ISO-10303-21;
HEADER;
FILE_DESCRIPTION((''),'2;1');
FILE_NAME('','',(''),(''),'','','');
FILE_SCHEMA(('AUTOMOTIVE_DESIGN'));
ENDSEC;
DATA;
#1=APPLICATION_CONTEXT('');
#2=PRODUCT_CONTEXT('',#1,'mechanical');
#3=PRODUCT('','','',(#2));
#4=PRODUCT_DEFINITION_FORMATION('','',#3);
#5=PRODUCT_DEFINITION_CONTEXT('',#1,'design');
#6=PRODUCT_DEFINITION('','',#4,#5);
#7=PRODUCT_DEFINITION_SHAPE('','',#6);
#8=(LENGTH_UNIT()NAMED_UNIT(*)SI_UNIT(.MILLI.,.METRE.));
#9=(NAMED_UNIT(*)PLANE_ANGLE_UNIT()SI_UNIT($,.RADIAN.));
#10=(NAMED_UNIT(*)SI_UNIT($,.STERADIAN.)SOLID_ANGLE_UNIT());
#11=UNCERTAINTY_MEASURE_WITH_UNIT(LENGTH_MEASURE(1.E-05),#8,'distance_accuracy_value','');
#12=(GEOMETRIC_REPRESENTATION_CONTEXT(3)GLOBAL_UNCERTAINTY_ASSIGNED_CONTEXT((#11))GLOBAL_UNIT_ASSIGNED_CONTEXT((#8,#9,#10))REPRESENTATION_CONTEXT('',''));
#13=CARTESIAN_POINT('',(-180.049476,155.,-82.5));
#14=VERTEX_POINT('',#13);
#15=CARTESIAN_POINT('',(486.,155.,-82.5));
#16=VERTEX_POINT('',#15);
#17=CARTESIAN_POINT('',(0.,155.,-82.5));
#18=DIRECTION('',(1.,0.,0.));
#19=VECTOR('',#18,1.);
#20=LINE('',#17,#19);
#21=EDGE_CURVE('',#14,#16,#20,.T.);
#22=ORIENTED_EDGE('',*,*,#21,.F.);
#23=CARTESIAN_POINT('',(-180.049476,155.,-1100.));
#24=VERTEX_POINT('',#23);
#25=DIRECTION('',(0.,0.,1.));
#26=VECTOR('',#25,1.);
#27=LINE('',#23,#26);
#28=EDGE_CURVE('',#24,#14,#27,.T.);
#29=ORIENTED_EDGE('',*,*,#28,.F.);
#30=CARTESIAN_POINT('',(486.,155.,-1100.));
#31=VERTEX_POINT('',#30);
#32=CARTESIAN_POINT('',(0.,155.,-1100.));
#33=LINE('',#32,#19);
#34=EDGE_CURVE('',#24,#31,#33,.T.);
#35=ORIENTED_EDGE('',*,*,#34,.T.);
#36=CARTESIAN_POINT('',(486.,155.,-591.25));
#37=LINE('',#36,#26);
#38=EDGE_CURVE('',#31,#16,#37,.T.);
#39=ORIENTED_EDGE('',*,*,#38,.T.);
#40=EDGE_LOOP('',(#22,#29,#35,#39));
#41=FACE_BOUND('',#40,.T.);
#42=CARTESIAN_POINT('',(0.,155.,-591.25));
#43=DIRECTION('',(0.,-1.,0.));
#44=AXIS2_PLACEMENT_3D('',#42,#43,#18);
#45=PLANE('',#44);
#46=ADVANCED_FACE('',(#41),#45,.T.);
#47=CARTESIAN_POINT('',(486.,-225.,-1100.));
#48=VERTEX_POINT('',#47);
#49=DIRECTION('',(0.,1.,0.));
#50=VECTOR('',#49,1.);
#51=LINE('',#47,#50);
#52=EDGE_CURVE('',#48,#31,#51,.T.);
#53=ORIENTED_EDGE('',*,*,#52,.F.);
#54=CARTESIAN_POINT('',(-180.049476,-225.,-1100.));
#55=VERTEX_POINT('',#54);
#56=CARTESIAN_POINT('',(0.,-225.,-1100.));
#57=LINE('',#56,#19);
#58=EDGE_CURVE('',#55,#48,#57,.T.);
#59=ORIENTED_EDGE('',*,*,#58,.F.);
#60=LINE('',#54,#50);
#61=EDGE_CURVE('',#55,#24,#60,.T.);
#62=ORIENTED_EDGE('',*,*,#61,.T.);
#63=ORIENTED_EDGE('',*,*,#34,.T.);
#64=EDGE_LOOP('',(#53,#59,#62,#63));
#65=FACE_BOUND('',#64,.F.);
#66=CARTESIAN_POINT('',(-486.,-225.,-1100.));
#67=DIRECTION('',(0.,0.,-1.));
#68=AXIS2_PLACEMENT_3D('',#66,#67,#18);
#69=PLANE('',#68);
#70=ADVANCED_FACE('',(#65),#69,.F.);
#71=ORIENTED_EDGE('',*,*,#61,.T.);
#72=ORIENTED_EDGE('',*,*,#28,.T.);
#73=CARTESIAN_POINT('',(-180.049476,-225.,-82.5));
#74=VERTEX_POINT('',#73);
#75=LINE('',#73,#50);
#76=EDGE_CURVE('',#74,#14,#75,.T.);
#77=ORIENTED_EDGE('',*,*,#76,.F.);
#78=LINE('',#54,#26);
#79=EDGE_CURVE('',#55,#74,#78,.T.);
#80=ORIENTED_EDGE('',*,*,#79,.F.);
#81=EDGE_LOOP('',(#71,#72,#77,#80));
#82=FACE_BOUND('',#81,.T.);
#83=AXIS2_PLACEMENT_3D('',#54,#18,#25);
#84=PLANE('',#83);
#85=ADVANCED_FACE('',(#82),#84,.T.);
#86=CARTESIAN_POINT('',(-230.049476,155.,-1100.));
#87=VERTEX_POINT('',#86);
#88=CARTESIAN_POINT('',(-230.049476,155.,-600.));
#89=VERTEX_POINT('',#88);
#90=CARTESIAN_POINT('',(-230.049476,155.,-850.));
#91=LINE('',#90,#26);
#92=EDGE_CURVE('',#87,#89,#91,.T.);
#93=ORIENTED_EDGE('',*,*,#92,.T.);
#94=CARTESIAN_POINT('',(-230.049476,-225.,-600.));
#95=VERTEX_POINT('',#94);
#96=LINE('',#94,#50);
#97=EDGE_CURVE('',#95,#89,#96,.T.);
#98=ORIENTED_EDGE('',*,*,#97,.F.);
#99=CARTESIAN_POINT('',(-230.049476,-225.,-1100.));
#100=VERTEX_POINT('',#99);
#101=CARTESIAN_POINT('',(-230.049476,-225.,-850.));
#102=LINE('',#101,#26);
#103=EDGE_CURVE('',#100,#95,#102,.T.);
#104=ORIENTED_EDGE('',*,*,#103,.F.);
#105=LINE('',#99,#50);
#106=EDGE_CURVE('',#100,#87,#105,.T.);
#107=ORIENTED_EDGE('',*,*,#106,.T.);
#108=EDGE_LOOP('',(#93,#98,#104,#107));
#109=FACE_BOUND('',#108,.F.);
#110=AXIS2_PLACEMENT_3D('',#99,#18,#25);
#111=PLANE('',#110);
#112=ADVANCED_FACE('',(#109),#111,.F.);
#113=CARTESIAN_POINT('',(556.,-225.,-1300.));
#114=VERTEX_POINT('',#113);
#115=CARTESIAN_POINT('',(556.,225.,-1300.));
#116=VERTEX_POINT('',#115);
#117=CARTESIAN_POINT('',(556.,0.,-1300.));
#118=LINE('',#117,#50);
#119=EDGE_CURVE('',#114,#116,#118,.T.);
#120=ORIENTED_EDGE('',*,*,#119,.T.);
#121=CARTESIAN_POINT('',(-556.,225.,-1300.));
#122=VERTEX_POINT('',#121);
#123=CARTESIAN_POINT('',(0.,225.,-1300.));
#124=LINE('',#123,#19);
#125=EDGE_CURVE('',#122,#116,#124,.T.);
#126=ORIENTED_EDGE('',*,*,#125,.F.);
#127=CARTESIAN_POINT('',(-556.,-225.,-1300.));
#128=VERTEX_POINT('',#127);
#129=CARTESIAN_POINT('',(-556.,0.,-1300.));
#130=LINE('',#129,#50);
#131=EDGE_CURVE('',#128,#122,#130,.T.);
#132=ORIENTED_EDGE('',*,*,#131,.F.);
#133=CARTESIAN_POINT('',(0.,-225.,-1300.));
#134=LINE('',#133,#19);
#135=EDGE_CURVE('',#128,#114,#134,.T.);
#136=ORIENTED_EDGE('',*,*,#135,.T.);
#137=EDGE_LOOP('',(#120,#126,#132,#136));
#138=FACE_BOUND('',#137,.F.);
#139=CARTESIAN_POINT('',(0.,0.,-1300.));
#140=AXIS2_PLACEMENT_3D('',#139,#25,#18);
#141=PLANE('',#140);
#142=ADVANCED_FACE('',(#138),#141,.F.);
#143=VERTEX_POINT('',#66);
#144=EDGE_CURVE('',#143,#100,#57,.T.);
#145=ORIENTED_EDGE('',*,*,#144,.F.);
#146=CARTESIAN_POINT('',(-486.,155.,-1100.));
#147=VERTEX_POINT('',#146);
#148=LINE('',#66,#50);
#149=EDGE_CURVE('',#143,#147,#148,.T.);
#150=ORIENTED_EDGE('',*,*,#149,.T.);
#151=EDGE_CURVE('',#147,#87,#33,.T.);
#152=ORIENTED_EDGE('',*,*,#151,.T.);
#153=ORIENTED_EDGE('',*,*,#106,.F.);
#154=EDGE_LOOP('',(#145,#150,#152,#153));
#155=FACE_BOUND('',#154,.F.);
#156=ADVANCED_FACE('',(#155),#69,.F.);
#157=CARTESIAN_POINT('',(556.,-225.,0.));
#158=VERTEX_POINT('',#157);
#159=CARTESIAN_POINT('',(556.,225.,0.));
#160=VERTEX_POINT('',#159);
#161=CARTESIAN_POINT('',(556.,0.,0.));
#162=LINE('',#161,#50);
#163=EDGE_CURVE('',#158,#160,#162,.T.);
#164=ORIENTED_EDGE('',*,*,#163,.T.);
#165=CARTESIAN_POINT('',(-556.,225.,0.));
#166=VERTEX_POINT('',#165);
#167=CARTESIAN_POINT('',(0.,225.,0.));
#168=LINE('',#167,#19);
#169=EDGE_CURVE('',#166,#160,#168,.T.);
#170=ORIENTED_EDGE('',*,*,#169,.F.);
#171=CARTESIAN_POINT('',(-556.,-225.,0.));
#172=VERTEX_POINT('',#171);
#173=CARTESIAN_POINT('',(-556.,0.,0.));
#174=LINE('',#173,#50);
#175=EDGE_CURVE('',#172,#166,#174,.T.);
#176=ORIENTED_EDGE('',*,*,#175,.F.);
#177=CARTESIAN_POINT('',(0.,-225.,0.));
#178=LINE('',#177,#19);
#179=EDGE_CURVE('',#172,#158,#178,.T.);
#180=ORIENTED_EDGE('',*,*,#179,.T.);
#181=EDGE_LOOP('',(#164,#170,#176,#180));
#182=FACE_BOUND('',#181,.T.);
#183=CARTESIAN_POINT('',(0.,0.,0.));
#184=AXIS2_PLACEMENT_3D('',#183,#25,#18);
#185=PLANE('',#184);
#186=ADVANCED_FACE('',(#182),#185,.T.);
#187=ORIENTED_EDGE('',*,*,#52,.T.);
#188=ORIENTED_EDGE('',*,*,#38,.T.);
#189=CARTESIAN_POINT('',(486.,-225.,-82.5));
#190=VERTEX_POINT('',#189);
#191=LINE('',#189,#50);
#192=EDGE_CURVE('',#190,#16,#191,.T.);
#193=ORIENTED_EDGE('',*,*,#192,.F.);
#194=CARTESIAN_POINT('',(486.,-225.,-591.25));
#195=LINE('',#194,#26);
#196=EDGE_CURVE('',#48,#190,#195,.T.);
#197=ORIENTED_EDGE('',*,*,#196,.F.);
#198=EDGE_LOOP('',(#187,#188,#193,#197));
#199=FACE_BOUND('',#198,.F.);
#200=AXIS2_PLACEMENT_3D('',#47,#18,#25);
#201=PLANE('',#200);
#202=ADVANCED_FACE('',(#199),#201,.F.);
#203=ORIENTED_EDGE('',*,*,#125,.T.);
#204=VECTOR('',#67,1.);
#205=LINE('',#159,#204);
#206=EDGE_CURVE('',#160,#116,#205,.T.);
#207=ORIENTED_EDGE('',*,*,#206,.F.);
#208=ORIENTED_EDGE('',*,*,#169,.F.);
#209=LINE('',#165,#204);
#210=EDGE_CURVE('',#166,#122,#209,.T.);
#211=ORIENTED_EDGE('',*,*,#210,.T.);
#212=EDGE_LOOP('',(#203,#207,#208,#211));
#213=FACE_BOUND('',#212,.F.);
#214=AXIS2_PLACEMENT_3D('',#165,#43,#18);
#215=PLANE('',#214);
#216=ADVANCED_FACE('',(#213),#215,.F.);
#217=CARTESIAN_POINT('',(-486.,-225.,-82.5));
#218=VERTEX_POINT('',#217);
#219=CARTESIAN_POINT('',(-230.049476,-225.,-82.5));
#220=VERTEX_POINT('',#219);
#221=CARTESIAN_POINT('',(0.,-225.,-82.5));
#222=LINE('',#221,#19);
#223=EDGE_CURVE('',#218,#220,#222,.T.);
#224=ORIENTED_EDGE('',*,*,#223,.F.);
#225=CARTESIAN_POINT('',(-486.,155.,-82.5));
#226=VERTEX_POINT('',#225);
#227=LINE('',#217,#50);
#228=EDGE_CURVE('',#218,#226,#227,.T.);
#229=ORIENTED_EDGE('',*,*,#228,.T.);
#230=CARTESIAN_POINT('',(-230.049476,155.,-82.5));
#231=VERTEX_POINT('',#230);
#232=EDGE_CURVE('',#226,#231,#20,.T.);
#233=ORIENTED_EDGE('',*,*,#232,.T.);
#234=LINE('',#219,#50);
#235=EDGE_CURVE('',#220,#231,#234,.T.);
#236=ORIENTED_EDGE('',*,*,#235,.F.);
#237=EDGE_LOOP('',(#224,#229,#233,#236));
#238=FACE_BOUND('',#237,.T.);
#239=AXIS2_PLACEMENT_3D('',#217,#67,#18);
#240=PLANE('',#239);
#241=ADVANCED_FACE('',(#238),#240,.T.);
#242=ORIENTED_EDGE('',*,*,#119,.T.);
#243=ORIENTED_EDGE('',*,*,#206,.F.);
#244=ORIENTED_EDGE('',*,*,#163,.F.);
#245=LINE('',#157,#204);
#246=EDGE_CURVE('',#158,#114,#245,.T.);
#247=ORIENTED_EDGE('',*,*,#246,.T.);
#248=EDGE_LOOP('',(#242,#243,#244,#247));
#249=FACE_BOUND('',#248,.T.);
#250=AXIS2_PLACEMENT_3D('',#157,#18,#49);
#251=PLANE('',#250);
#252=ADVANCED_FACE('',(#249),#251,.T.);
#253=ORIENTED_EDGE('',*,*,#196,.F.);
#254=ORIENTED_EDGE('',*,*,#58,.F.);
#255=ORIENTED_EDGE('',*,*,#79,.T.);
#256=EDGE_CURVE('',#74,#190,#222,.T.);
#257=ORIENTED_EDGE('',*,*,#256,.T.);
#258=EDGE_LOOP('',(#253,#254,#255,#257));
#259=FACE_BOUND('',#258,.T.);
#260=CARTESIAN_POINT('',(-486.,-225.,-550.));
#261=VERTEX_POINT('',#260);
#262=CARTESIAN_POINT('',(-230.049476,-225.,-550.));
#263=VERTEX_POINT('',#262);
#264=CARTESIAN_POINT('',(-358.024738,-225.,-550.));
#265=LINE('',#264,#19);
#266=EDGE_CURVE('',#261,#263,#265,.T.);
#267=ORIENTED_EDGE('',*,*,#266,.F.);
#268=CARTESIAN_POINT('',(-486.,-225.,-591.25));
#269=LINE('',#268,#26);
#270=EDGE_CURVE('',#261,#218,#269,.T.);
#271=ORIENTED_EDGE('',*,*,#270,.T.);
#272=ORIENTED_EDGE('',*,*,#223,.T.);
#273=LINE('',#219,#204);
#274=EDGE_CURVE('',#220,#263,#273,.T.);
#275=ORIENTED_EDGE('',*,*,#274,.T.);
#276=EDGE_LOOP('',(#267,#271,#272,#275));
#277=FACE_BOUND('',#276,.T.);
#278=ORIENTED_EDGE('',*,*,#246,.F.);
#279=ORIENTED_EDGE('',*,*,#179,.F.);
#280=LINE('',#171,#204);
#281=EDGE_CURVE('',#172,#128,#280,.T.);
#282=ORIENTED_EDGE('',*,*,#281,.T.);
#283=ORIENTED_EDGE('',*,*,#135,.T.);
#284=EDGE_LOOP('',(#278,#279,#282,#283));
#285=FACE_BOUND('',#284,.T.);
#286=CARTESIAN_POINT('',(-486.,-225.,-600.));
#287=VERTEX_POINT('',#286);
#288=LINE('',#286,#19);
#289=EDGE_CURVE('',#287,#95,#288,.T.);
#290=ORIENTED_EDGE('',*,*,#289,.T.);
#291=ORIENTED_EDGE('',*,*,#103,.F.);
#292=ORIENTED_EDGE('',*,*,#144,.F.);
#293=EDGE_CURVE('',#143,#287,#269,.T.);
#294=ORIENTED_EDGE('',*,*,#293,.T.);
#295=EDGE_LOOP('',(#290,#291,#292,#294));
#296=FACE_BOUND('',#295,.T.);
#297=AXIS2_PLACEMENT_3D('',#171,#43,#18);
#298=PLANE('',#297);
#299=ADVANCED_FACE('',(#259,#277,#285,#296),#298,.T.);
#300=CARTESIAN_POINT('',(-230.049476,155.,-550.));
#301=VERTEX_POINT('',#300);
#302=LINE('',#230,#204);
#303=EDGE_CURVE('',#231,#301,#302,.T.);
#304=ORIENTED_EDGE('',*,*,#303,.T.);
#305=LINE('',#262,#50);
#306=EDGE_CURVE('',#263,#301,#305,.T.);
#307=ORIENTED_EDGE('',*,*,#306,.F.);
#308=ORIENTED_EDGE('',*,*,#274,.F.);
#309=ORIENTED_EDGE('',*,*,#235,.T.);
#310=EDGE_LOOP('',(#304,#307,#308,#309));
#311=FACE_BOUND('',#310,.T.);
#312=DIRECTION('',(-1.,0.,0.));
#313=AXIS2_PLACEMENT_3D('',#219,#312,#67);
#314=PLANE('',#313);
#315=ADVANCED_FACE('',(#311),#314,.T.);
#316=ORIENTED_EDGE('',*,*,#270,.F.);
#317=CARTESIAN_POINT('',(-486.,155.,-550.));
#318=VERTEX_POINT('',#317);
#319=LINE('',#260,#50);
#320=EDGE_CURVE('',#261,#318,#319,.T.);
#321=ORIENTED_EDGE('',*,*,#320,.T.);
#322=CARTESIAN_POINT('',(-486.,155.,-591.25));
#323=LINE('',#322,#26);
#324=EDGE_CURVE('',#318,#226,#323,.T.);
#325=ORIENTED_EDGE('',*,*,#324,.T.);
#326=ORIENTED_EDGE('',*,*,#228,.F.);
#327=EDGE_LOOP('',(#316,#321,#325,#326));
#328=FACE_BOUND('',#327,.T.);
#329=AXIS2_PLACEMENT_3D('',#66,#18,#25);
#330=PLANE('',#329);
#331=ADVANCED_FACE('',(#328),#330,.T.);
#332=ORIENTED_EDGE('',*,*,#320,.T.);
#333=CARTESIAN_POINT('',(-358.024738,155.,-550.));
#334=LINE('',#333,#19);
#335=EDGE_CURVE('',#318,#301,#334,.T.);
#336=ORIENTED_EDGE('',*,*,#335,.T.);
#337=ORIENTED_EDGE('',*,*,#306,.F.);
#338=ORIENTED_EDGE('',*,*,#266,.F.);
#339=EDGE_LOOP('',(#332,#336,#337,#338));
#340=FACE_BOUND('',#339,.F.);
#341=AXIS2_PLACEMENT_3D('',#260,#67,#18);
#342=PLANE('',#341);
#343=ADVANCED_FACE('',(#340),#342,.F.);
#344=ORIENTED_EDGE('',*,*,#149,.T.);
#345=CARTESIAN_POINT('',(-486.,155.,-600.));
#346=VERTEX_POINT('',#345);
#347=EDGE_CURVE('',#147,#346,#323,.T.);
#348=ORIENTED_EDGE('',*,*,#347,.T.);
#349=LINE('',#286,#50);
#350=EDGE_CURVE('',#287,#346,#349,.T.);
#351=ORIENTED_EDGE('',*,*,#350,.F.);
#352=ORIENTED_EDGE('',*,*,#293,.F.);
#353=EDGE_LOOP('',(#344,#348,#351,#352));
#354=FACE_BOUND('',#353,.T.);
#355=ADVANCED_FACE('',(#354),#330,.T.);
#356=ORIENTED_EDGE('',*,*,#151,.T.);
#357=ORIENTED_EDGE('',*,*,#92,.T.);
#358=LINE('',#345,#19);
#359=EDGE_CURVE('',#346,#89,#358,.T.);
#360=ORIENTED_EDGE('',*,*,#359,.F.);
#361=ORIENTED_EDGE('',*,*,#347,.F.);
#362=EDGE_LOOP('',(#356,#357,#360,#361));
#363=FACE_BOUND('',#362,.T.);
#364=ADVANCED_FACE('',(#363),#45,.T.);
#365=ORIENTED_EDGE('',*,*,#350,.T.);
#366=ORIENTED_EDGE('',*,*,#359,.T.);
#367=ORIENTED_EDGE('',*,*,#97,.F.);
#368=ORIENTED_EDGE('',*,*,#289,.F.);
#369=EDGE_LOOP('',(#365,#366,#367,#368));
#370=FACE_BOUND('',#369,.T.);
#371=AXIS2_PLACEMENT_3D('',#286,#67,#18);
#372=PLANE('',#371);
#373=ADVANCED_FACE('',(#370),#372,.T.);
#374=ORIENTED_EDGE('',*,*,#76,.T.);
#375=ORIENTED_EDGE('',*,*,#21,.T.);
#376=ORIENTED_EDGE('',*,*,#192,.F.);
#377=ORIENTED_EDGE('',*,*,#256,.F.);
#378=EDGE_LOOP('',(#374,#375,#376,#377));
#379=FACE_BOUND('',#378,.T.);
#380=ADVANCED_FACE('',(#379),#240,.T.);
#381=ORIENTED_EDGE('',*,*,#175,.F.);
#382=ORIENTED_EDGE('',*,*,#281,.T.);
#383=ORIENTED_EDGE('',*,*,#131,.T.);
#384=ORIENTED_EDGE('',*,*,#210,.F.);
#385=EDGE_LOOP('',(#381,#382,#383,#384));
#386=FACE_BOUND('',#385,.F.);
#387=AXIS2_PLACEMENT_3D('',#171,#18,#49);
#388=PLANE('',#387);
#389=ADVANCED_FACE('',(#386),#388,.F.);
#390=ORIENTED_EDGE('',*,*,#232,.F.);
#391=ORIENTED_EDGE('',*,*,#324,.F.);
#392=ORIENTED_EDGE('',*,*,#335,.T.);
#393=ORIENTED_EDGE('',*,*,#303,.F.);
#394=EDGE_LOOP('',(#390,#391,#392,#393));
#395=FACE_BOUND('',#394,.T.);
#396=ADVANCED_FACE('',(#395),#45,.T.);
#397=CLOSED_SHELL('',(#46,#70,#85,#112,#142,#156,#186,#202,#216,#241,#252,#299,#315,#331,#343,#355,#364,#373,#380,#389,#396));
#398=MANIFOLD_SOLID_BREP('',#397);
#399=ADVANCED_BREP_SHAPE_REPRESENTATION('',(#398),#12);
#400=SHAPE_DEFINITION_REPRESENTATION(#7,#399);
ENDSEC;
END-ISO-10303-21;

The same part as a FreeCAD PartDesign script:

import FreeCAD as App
import Part
import Sketcher
from FreeCAD import Vector
Q = App.Units.Quantity


def add_polygon(sketch, points):
    """Adds a closed chain of lines whose ends are joined by coincident constraints."""
    first, n = sketch.GeometryCount, len(points)
    for a, b in zip(points, points[1:] + points[:1]):
        sketch.addGeometry(Part.LineSegment(App.Vector(*a, 0), App.Vector(*b, 0)), False)
    for i in range(n):
        sketch.addConstraint(Sketcher.Constraint("Coincident", first + i, 2, first + (i + 1) % n, 1))

doc = App.newDocument("Part")
params = doc.addObject("Spreadsheet::Sheet", "Params")
for row, (alias, value) in enumerate([
    ("sketch1_width", "1112 mm"),
    ("sketch1_height", "450 mm"),
    ("pad1_length", "1300 mm"),
    ("sketch2_width", "972 mm"),
    ("sketch2_height", "1017.5 mm"),
    ("pocket1_length", "380 mm"),
    ("sketch3_width", "50 mm"),
    ("sketch3_height", "500 mm"),
    ("sketch3_height2", "467.5 mm"),
    ("pad2_length", "380 mm"),
], start=1):
    params.set(f"A{row}", alias)
    params.set(f"B{row}", "=" + value)
    params.setAlias(f"B{row}", alias)

body = doc.addObject("PartDesign::Body", "Body")

# Sketch on XY plane
sketch1 = body.newObject("Sketcher::SketchObject", "Sketch")
sketch1.AttachmentSupport = (doc.getObject("XY_Plane"), [""])
sketch1.MapMode = "FlatFace"
add_polygon(sketch1, [(-556, 225), (-556, -225), (556, -225), (556, 225)])  # lines 0-3
sketch1.addConstraint([
    Sketcher.Constraint("Vertical", 0),
    Sketcher.Constraint("Horizontal", 1),
    Sketcher.Constraint("Vertical", 2),
    Sketcher.Constraint("Horizontal", 3),
    Sketcher.Constraint("Symmetric", 0, 2, 2, 2, -1, 1),
    Sketcher.Constraint("DistanceX", 1, 1, 1, 2, Q("1112 mm")),
    Sketcher.Constraint("DistanceY", 0, 2, 0, 1, Q("450 mm")),
])
sketch1.setExpression("Constraints[9]", "Params.sketch1_width")
sketch1.setExpression("Constraints[10]", "Params.sketch1_height")
pad1 = body.newObject("PartDesign::Pad", "Pad")
pad1.Profile = sketch1
pad1.setExpression("Length", "Params.pad1_length")
pad1.Reversed = True

# Sketch on XZ plane
sketch2 = body.newObject("Sketcher::SketchObject", "Sketch001")
sketch2.AttachmentSupport = (doc.getObject("XZ_Plane"), [""])
sketch2.MapMode = "FlatFace"
sketch2.AttachmentOffset = App.Placement(Vector(0, 0, 225), App.Rotation())
add_polygon(sketch2, [(-486, -82), (-486, -1100), (486, -1100), (486, -82)])  # lines 0-3
sketch2.addConstraint([
    Sketcher.Constraint("Vertical", 0),
    Sketcher.Constraint("Horizontal", 1),
    Sketcher.Constraint("Vertical", 2),
    Sketcher.Constraint("Horizontal", 3),
    Sketcher.Constraint("DistanceX", 1, 1, 1, 2, Q("972 mm")),
    Sketcher.Constraint("DistanceY", 0, 2, 0, 1, Q("1017.5 mm")),
    Sketcher.Constraint("DistanceX", 0, 2, -1, 1, Q("486 mm")),
    Sketcher.Constraint("DistanceY", 0, 2, -1, 1, Q("1100 mm")),
])
sketch2.setExpression("Constraints[8]", "Params.sketch2_width")
sketch2.setExpression("Constraints[9]", "Params.sketch2_height")
pocket1 = body.newObject("PartDesign::Pocket", "Pocket")
pocket1.Profile = sketch2
pocket1.setExpression("Length", "Params.pocket1_length")

# Sketch on XZ plane
sketch3 = body.newObject("Sketcher::SketchObject", "Sketch002")
sketch3.AttachmentSupport = (doc.getObject("XZ_Plane"), [""])
sketch3.MapMode = "FlatFace"
sketch3.AttachmentOffset = App.Placement(Vector(0, 0, 225), App.Rotation())
add_polygon(sketch3, [(-230, -82), (-230, -550), (-486, -550), (-486, -600), (-230, -600), (-230, -1100), (-180, -1100), (-180, -82)])  # lines 0-7
sketch3.addConstraint([
    Sketcher.Constraint("Vertical", 0),
    Sketcher.Constraint("Horizontal", 1),
    Sketcher.Constraint("Vertical", 2),
    Sketcher.Constraint("Horizontal", 3),
    Sketcher.Constraint("Vertical", 4),
    Sketcher.Constraint("Horizontal", 5),
    Sketcher.Constraint("Vertical", 6),
    Sketcher.Constraint("Horizontal", 7),
    Sketcher.Constraint("Vertical", 0, 2, 3, 2),
    Sketcher.Constraint("Equal", 7, 2),
    Sketcher.Constraint("DistanceX", 5, 1, 5, 2, Q("50 mm")),
    Sketcher.Constraint("DistanceY", 4, 2, 4, 1, Q("500 mm")),
    Sketcher.Constraint("DistanceY", 0, 2, 0, 1, Q("467.5 mm")),
    Sketcher.Constraint("DistanceY", 0, 2, -1, 1, Q("550 mm")),
    Sketcher.Constraint("DistanceX", 1, 2, -1, 1, Q("486 mm")),
    Sketcher.Constraint("DistanceX", 1, 2, 1, 1, Q("255.950524 mm")),
])
sketch3.setExpression("Constraints[18]", "Params.sketch3_width")
sketch3.setExpression("Constraints[19]", "Params.sketch3_height")
sketch3.setExpression("Constraints[20]", "Params.sketch3_height2")
pad2 = body.newObject("PartDesign::Pad", "Pad001")
pad2.Profile = sketch3
pad2.setExpression("Length", "Params.pad2_length")
pad2.Reversed = True

doc.recompute()
